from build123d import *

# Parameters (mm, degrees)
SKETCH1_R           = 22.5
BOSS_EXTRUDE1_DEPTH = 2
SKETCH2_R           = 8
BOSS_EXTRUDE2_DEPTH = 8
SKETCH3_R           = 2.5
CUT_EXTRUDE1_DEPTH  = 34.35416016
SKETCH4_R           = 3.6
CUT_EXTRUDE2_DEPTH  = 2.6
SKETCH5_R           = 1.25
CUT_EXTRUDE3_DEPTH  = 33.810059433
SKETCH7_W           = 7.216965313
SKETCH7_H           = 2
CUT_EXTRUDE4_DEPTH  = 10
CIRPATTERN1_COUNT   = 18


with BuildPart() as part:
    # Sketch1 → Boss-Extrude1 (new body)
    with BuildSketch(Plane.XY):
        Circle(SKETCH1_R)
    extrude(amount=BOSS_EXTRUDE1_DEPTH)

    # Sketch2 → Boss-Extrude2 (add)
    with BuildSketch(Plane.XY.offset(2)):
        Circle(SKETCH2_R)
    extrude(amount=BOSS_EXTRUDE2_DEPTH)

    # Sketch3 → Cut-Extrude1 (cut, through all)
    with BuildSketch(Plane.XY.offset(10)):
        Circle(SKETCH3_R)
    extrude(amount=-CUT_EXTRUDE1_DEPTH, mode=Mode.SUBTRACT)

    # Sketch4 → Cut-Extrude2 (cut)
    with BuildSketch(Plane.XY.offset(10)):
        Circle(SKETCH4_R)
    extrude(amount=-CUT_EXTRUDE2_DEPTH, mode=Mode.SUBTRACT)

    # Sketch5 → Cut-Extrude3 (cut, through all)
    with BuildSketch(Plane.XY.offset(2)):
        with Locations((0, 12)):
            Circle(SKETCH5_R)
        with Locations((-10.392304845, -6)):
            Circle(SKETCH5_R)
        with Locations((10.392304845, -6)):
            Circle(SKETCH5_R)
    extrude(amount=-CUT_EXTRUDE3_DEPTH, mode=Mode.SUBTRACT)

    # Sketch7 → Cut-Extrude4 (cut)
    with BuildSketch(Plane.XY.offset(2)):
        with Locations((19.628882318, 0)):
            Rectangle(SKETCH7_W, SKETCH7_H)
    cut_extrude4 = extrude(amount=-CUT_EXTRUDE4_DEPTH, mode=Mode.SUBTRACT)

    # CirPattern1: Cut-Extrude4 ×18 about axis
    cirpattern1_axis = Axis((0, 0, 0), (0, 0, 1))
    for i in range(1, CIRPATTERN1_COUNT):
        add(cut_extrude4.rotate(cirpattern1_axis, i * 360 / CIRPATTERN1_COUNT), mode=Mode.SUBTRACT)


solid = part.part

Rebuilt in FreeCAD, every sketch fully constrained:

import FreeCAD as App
import Part
import Sketcher
from FreeCAD import Vector


def add_polygon(sketch, points):
    """Adds a closed chain of lines whose ends are joined by coincident constraints."""
    first, n = sketch.GeometryCount, len(points)
    for a, b in zip(points, points[1:] + points[:1]):
        sketch.addGeometry(Part.LineSegment(App.Vector(*a, 0), App.Vector(*b, 0)), False)
    for i in range(n):
        sketch.addConstraint(Sketcher.Constraint("Coincident", first + i, 2, first + (i + 1) % n, 1))

doc = App.newDocument("Part")
params = doc.addObject("Spreadsheet::Sheet", "Params")
for row, (alias, value) in enumerate([
    ("sketch1_diameter", "45 mm"),
    ("pad1_length", "2 mm"),
    ("sketch2_diameter", "16 mm"),
    ("pad2_length", "8 mm"),
    ("sketch3_diameter", "5 mm"),
    ("sketch4_diameter", "7.2 mm"),
    ("pocket2_length", "2.6 mm"),
    ("sketch5_diameter", "2.5 mm"),
    ("sketch6_height", "2 mm"),
    ("pocket4_length", "10 mm"),
], start=1):
    params.set(f"A{row}", alias)
    params.set(f"B{row}", "=" + value)
    params.setAlias(f"B{row}", alias)

body = doc.addObject("PartDesign::Body", "Body")

sketch1 = body.newObject("Sketcher::SketchObject", "Sketch")
sketch1.AttachmentSupport = (doc.getObject("XY_Plane"), [""])
sketch1.MapMode = "FlatFace"
sketch1.addGeometry(Part.Circle(Vector(0, 0, 0), Vector(0, 0, 1), 22.5), False)
sketch1.addConstraint([
    Sketcher.Constraint("Coincident", 0, 3, -1, 1),
    Sketcher.Constraint("Diameter", 0, 45.0),
])
sketch1.setExpression("Constraints[1]", "Params.sketch1_diameter")
pad1 = body.newObject("PartDesign::Pad", "Pad")
pad1.Profile = sketch1
pad1.setExpression("Length", "Params.pad1_length")

sketch2 = body.newObject("Sketcher::SketchObject", "Sketch001")
sketch2.AttachmentSupport = (doc.getObject("XY_Plane"), [""])
sketch2.MapMode = "FlatFace"
sketch2.AttachmentOffset = App.Placement(Vector(0, 0, 2), App.Rotation())
sketch2.addGeometry(Part.Circle(Vector(0, 0, 0), Vector(0, 0, 1), 8), False)
sketch2.addConstraint([
    Sketcher.Constraint("Coincident", 0, 3, -1, 1),
    Sketcher.Constraint("Diameter", 0, 16.0),
])
sketch2.setExpression("Constraints[1]", "Params.sketch2_diameter")
pad2 = body.newObject("PartDesign::Pad", "Pad001")
pad2.Profile = sketch2
pad2.setExpression("Length", "Params.pad2_length")

sketch3 = body.newObject("Sketcher::SketchObject", "Sketch002")
sketch3.AttachmentSupport = (doc.getObject("XY_Plane"), [""])
sketch3.MapMode = "FlatFace"
sketch3.AttachmentOffset = App.Placement(Vector(0, 0, 10), App.Rotation())
sketch3.addGeometry(Part.Circle(Vector(0, 0, 0), Vector(0, 0, 1), 2.5), False)
sketch3.addConstraint([
    Sketcher.Constraint("Coincident", 0, 3, -1, 1),
    Sketcher.Constraint("Diameter", 0, 5.0),
])
sketch3.setExpression("Constraints[1]", "Params.sketch3_diameter")
pocket1 = body.newObject("PartDesign::Pocket", "Pocket")
pocket1.Profile = sketch3
pocket1.Type = "ThroughAll"

sketch4 = body.newObject("Sketcher::SketchObject", "Sketch003")
sketch4.AttachmentSupport = (doc.getObject("XY_Plane"), [""])
sketch4.MapMode = "FlatFace"
sketch4.AttachmentOffset = App.Placement(Vector(0, 0, 10), App.Rotation())
sketch4.addGeometry(Part.Circle(Vector(0, 0, 0), Vector(0, 0, 1), 3.6), False)
sketch4.addConstraint([
    Sketcher.Constraint("Coincident", 0, 3, -1, 1),
    Sketcher.Constraint("Diameter", 0, 7.2),
])
sketch4.setExpression("Constraints[1]", "Params.sketch4_diameter")
pocket2 = body.newObject("PartDesign::Pocket", "Pocket001")
pocket2.Profile = sketch4
pocket2.setExpression("Length", "Params.pocket2_length")

sketch5 = body.newObject("Sketcher::SketchObject", "Sketch004")
sketch5.AttachmentSupport = (doc.getObject("XY_Plane"), [""])
sketch5.MapMode = "FlatFace"
sketch5.AttachmentOffset = App.Placement(Vector(0, 0, 2), App.Rotation())
sketch5.addGeometry([
    Part.Circle(Vector(0, 12, 0), Vector(0, 0, 1), 1.25),
    Part.Circle(Vector(-10.392305, -6, 0), Vector(0, 0, 1), 1.25),
    Part.Circle(Vector(10.392305, -6, 0), Vector(0, 0, 1), 1.25),
], False)
sketch5.addConstraint([
    Sketcher.Constraint("Equal", 0, 1),
    Sketcher.Constraint("Equal", 1, 2),
    Sketcher.Constraint("Symmetric", 1, 3, 2, 3, -2),
    Sketcher.Constraint("PointOnObject", 0, 3, -2),
    Sketcher.Constraint("Diameter", 0, 2.5),
    Sketcher.Constraint("DistanceY", -1, 1, 0, 3, 12.0),
    Sketcher.Constraint("DistanceY", 1, 3, -1, 1, 6.0),
    Sketcher.Constraint("DistanceX", 1, 3, 2, 3, 20.78461),
])
sketch5.setExpression("Constraints[4]", "Params.sketch5_diameter")
pocket3 = body.newObject("PartDesign::Pocket", "Pocket002")
pocket3.Profile = sketch5
pocket3.Type = "ThroughAll"

sketch6 = body.newObject("Sketcher::SketchObject", "Sketch005")
sketch6.AttachmentSupport = (doc.getObject("XY_Plane"), [""])
sketch6.MapMode = "FlatFace"
sketch6.AttachmentOffset = App.Placement(Vector(0, 0, 2), App.Rotation())
add_polygon(sketch6, [(16.0204, 1), (16.0204, -1), (23.237365, -1), (23.237365, 1)])
sketch6.addConstraint([
    Sketcher.Constraint("Vertical", 0),
    Sketcher.Constraint("Horizontal", 1),
    Sketcher.Constraint("Vertical", 2),
    Sketcher.Constraint("Horizontal", 3),
    Sketcher.Constraint("DistanceY", 0, 2, 0, 1, 2.0),
    Sketcher.Constraint("DistanceY", 0, 2, -1, 1, 1.0),
    Sketcher.Constraint("DistanceX", -1, 1, 0, 2, 16.0204),
    Sketcher.Constraint("DistanceX", 1, 1, 1, 2, 7.216965),
])
sketch6.setExpression("Constraints[8]", "Params.sketch6_height")
pocket4 = body.newObject("PartDesign::Pocket", "Pocket003")
pocket4.Profile = sketch6
pocket4.setExpression("Length", "Params.pocket4_length")
doc.recompute()

polarpattern = body.newObject("PartDesign::PolarPattern", "PolarPattern")
polarpattern.Originals = [pocket4]
polarpattern.Axis = (doc.getObject("Z_Axis"), [""])
polarpattern.Angle = 360
polarpattern.Occurrences = 18
body.Tip = polarpattern

doc.recompute()
